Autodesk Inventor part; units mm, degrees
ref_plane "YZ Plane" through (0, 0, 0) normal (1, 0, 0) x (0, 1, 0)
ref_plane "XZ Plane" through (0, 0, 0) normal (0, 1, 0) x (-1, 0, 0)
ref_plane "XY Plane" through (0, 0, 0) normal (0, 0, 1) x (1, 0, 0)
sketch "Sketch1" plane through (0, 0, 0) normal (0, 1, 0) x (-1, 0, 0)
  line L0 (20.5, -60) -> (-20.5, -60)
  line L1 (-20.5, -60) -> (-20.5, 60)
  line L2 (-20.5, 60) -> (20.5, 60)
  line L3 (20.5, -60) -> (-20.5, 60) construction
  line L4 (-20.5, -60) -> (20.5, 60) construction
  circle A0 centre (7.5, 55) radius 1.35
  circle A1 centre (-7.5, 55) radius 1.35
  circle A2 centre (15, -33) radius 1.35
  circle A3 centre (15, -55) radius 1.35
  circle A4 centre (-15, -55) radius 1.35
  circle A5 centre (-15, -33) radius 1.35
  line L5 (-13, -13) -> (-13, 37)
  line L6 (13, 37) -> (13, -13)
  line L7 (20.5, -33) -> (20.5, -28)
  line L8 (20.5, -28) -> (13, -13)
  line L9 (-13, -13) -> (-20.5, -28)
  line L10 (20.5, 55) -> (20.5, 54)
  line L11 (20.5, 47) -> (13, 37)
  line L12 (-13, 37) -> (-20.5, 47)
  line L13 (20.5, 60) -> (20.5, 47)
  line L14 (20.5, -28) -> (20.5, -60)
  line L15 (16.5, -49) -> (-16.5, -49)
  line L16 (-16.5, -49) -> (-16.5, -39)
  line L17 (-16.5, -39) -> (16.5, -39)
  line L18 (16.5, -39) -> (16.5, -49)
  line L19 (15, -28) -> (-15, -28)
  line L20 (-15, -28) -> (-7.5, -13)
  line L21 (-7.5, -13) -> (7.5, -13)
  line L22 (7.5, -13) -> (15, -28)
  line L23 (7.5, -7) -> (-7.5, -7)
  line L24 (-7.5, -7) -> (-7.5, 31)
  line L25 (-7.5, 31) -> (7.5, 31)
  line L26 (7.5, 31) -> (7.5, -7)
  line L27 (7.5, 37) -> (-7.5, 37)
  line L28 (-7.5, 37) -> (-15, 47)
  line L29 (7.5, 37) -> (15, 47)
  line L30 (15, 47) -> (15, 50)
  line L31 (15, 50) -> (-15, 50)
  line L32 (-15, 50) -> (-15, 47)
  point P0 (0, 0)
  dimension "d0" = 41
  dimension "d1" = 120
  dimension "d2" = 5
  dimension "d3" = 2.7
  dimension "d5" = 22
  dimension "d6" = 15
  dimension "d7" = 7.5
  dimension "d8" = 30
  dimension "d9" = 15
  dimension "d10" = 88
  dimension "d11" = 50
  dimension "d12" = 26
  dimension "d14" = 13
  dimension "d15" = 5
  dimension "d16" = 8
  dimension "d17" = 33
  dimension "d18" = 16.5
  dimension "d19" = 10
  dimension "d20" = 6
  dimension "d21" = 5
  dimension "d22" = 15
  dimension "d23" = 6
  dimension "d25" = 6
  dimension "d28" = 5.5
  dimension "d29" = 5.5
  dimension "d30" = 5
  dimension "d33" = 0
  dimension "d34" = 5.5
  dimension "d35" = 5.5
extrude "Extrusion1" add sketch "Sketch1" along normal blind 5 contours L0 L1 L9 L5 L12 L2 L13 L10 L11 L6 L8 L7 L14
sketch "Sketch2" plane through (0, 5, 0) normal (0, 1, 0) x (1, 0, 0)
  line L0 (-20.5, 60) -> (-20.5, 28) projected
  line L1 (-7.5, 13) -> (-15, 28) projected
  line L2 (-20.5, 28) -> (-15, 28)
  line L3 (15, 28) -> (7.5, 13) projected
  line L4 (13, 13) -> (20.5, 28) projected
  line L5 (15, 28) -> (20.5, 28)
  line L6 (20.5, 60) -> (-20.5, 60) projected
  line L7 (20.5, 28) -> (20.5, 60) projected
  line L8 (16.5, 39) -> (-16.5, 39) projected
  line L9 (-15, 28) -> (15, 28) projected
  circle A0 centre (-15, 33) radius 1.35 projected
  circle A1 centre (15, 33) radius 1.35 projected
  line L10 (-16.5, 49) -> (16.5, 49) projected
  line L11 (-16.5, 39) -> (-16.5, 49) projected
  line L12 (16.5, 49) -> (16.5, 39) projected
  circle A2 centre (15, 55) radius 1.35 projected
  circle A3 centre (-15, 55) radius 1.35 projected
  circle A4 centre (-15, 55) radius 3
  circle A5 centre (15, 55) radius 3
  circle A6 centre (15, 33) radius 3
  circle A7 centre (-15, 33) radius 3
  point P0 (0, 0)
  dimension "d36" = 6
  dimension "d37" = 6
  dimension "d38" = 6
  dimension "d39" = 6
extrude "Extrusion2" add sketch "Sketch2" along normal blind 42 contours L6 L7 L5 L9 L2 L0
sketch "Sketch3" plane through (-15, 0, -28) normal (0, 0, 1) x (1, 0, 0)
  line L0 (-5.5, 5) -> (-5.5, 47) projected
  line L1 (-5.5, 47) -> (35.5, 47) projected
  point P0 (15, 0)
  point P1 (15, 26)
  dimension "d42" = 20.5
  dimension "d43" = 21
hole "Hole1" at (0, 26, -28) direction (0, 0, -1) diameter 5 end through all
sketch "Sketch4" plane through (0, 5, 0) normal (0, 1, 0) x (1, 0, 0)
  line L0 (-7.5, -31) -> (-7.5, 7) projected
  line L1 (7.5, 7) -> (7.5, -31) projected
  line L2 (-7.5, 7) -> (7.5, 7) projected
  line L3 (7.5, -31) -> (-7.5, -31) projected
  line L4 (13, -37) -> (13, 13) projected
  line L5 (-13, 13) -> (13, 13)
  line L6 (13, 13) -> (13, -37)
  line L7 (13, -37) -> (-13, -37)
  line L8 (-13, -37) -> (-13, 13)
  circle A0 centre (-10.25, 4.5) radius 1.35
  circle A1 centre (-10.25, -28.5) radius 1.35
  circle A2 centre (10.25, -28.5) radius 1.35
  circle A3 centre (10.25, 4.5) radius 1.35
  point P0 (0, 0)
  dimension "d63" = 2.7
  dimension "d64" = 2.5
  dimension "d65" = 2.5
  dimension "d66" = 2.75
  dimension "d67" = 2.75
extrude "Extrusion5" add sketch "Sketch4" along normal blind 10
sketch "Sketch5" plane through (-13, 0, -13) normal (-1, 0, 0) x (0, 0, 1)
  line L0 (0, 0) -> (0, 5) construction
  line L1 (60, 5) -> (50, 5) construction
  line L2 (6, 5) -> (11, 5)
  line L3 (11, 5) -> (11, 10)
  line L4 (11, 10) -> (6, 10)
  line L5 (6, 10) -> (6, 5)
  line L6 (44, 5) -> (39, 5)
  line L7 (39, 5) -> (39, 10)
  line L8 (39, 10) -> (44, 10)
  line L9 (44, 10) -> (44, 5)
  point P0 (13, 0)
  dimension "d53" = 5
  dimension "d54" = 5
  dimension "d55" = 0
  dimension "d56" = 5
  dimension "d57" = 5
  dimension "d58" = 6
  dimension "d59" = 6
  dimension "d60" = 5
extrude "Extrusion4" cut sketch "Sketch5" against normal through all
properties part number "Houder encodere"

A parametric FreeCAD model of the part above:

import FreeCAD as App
import Part
import Sketcher


def add_polygon(sketch, points):
    """Adds a closed chain of lines whose ends are joined by coincident constraints."""
    first, n = sketch.GeometryCount, len(points)
    for a, b in zip(points, points[1:] + points[:1]):
        sketch.addGeometry(Part.LineSegment(App.Vector(*a, 0), App.Vector(*b, 0)), False)
    for i in range(n):
        sketch.addConstraint(Sketcher.Constraint("Coincident", first + i, 2, first + (i + 1) % n, 1))

doc = App.newDocument("Part")
params = doc.addObject("Spreadsheet::Sheet", "Params")
for row, (alias, value) in enumerate([
    ("sketch1_diameter", "2.7 mm"),
    ("sketch1_width", "41 mm"),
    ("sketch1_width2", "33 mm"),
    ("sketch1_width3", "30 mm"),
    ("sketch1_width4", "15 mm"),
    ("pad1_length", "5 mm"),
    ("sketch2_diameter", "6 mm"),
    ("sketch2_width", "41 mm"),
    ("sketch2_width2", "33 mm"),
    ("sketch2_height", "32 mm"),
    ("sketch2_height2", "10 mm"),
    ("pad2_length", "42 mm"),
    ("sketch3_diameter", "5 mm"),
    ("hole_diameter", "5 mm"),
    ("sketch4_diameter", "2.7 mm"),
    ("sketch4_width", "26 mm"),
    ("sketch4_width2", "15 mm"),
    ("sketch4_height", "50 mm"),
    ("sketch4_height2", "38 mm"),
    ("pad3_length", "10 mm"),
    ("sketch5_width", "5 mm"),
], start=1):
    params.set(f"A{row}", alias)
    params.set(f"B{row}", "=" + value)
    params.setAlias(f"B{row}", alias)

body = doc.addObject("PartDesign::Body", "Body")

# Sketch on XZ plane
sketch1 = body.newObject("Sketcher::SketchObject", "Sketch")
sketch1.AttachmentSupport = (doc.getObject("XZ_Plane"), [""])
sketch1.MapMode = "FlatFace"
add_polygon(sketch1, [(20.5, -60), (-20.5, -60), (-20.5, -28), (-13, -13), (-13, 37), (-20.5, 47), (-20.5, 60), (20.5, 60), (20.5, 47), (13, 37), (13, -13), (20.5, -28)])  # lines 0-11
sketch1.addGeometry(Part.Circle(App.Vector(15, -55, 0), App.Vector(0, 0, 1), 1.4), False)  # 12
sketch1.addGeometry(Part.Circle(App.Vector(15, -33, 0), App.Vector(0, 0, 1), 1.4), False)  # 13
add_polygon(sketch1, [(-16.5, -39), (-16.5, -49), (16.5, -49), (16.5, -39)])  # lines 14-17
sketch1.addGeometry(Part.Circle(App.Vector(-15, -55, 0), App.Vector(0, 0, 1), 1.4), False)  # 18
sketch1.addGeometry(Part.Circle(App.Vector(-15, -33, 0), App.Vector(0, 0, 1), 1.4), False)  # 19
add_polygon(sketch1, [(-7.5, -13), (-15, -28), (15, -28), (7.5, -13)])  # lines 20-23
sketch1.addGeometry(Part.Circle(App.Vector(7.5, 55, 0), App.Vector(0, 0, 1), 1.4), False)  # 24
add_polygon(sketch1, [(-7.5, 31), (-7.5, -7), (7.5, -7), (7.5, 31)])  # lines 25-28
add_polygon(sketch1, [(-15, 47), (-7.5, 37), (7.5, 37), (15, 47), (15, 50), (-15, 50)])  # lines 29-34
sketch1.addGeometry(Part.Circle(App.Vector(-7.5, 55, 0), App.Vector(0, 0, 1), 1.4), False)  # 35
sketch1.addConstraint(Sketcher.Constraint("Horizontal", 0))
sketch1.addConstraint(Sketcher.Constraint("Vertical", 1))
sketch1.addConstraint(Sketcher.Constraint("Vertical", 3))
sketch1.addConstraint(Sketcher.Constraint("Vertical", 5))
sketch1.addConstraint(Sketcher.Constraint("Horizontal", 6))
sketch1.addConstraint(Sketcher.Constraint("Vertical", 7))
sketch1.addConstraint(Sketcher.Constraint("Vertical", 9))
sketch1.addConstraint(Sketcher.Constraint("Vertical", 11))
sketch1.addConstraint(Sketcher.Constraint("Vertical", 14))
sketch1.addConstraint(Sketcher.Constraint("Horizontal", 15))
sketch1.addConstraint(Sketcher.Constraint("Vertical", 16))
sketch1.addConstraint(Sketcher.Constraint("Horizontal", 17))
sketch1.addConstraint(Sketcher.Constraint("Horizontal", 21))
sketch1.addConstraint(Sketcher.Constraint("Horizontal", 23))
sketch1.addConstraint(Sketcher.Constraint("Vertical", 25))
sketch1.addConstraint(Sketcher.Constraint("Horizontal", 26))
sketch1.addConstraint(Sketcher.Constraint("Vertical", 27))
sketch1.addConstraint(Sketcher.Constraint("Horizontal", 28))
sketch1.addConstraint(Sketcher.Constraint("Horizontal", 30))
sketch1.addConstraint(Sketcher.Constraint("Vertical", 32))
sketch1.addConstraint(Sketcher.Constraint("Horizontal", 33))
sketch1.addConstraint(Sketcher.Constraint("Vertical", 34))
sketch1.addConstraint(Sketcher.Constraint("Equal", 12, 13))
sketch1.addConstraint(Sketcher.Constraint("Equal", 13, 18))
sketch1.addConstraint(Sketcher.Constraint("Equal", 18, 19))
sketch1.addConstraint(Sketcher.Constraint("Equal", 19, 24))
sketch1.addConstraint(Sketcher.Constraint("Equal", 24, 35))
sketch1.addConstraint(Sketcher.Constraint("Symmetric", 0, 2, 6, 2, -1, 1))
sketch1.addConstraint(Sketcher.Constraint("Symmetric", 12, 3, 18, 3, -2))
sketch1.addConstraint(Sketcher.Constraint("Symmetric", 13, 3, 19, 3, -2))
sketch1.addConstraint(Sketcher.Constraint("Symmetric", 24, 3, 35, 3, -2))
sketch1.addConstraint(Sketcher.Constraint("Symmetric", 4, 2, 7, 2, -2))
sketch1.addConstraint(Sketcher.Constraint("Symmetric", 3, 2, 8, 2, -2))
sketch1.addConstraint(Sketcher.Constraint("Symmetric", 1, 2, 10, 2, -2))
sketch1.addConstraint(Sketcher.Constraint("Symmetric", 31, 2, 34, 2, -2))
sketch1.addConstraint(Sketcher.Constraint("Parallel", 2, 20))
sketch1.addConstraint(Sketcher.Constraint("Parallel", 10, 22))
sketch1.addConstraint(Sketcher.Constraint("Parallel", 4, 29))
sketch1.addConstraint(Sketcher.Constraint("Parallel", 8, 31))
sketch1.addConstraint(Sketcher.Constraint("Horizontal", 2, 2, 9, 2))
sketch1.addConstraint(Sketcher.Constraint("Horizontal", 10, 2, 20, 2))
sketch1.addConstraint(Sketcher.Constraint("Horizontal", 9, 2, 22, 2))
sketch1.addConstraint(Sketcher.Constraint("Horizontal", 8, 2, 29, 2))
sketch1.addConstraint(Sketcher.Constraint("Horizontal", 7, 2, 31, 2))
sketch1.addConstraint(Sketcher.Constraint("Vertical", 12, 3, 13, 3))
sketch1.addConstraint(Sketcher.Constraint("Vertical", 19, 3, 20, 2))
sketch1.addConstraint(Sketcher.Constraint("Vertical", 13, 3, 21, 2))
sketch1.addConstraint(Sketcher.Constraint("Vertical", 24, 3, 22, 2))
sketch1.addConstraint(Sketcher.Constraint("Vertical", 23, 2, 25, 2))
sketch1.addConstraint(Sketcher.Constraint("Vertical", 22, 2, 26, 2))
sketch1.addConstraint(Sketcher.Constraint("Vertical", 28, 2, 29, 2))
sketch1.addConstraint(Sketcher.Constraint("Diameter", 12, 2.7))
sketch1.addConstraint(Sketcher.Constraint("DistanceX", 0, 2, 0, 1, 41.0))
sketch1.addConstraint(Sketcher.Constraint("DistanceX", 15, 1, 15, 2, 33.0))
sketch1.addConstraint(Sketcher.Constraint("DistanceX", 21, 1, 21, 2, 30.0))
sketch1.addConstraint(Sketcher.Constraint("DistanceX", 23, 2, 23, 1, 15.0))
sketch1.addConstraint(Sketcher.Constraint("DistanceY", 3, 1, 3, 2, 50.0))
sketch1.addConstraint(Sketcher.Constraint("DistanceY", 5, 1, 5, 2, 13.0))
sketch1.addConstraint(Sketcher.Constraint("DistanceY", 14, 2, 14, 1, 10.0))
sketch1.addConstraint(Sketcher.Constraint("DistanceY", 13, 3, -1, 1, 33.0))
sketch1.addConstraint(Sketcher.Constraint("DistanceY", 2, 2, -1, 1, 13.0))
sketch1.addConstraint(Sketcher.Constraint("DistanceY", -1, 1, 32, 2, 50.0))
sketch1.addConstraint(Sketcher.Constraint("DistanceY", 12, 3, 13, 3, 22.0))
sketch1.addConstraint(Sketcher.Constraint("DistanceY", 13, 3, 24, 3, 88.0))
sketch1.addConstraint(Sketcher.Constraint("DistanceY", 0, 2, 18, 3, 5.0))
sketch1.addConstraint(Sketcher.Constraint("DistanceY", 19, 3, 1, 2, 5.0))
sketch1.addConstraint(Sketcher.Constraint("DistanceY", 18, 3, 14, 2, 6.0))
sketch1.addConstraint(Sketcher.Constraint("DistanceY", 23, 2, 25, 2, 6.0))
sketch1.addConstraint(Sketcher.Constraint("DistanceY", 27, 2, 8, 2, 6.0))
sketch1.addConstraint(Sketcher.Constraint("DistanceX", 14, 2, -1, 1, 16.5))
sketch1.setExpression("Constraints[81]", "Params.sketch1_diameter")
sketch1.setExpression("Constraints[82]", "Params.sketch1_width")
sketch1.setExpression("Constraints[83]", "Params.sketch1_width2")
sketch1.setExpression("Constraints[84]", "Params.sketch1_width3")
sketch1.setExpression("Constraints[85]", "Params.sketch1_width4")
pad1 = body.newObject("PartDesign::Pad", "Pad")
pad1.Profile = sketch1
pad1.setExpression("Length", "Params.pad1_length")
pad1.Reversed = True

# Sketch on XZ plane
sketch2 = body.newObject("Sketcher::SketchObject", "Sketch001")
sketch2.AttachmentSupport = (doc.getObject("XZ_Plane"), [""])
sketch2.MapMode = "FlatFace"
sketch2.AttachmentOffset = App.Placement(App.Vector(0, 0, -5), App.Rotation())
add_polygon(sketch2, [(20.5, -60), (-20.5, -60), (-20.5, -28), (20.5, -28)])  # lines 0-3
sketch2.addGeometry(Part.Circle(App.Vector(-15, -33, 0), App.Vector(0, 0, 1), 3), False)  # 4
sketch2.addGeometry(Part.Circle(App.Vector(15, -33, 0), App.Vector(0, 0, 1), 3), False)  # 5
sketch2.addGeometry(Part.Circle(App.Vector(-15, -55, 0), App.Vector(0, 0, 1), 3), False)  # 6
add_polygon(sketch2, [(16.5, -49), (16.5, -39), (-16.5, -39), (-16.5, -49)])  # lines 7-10
sketch2.addGeometry(Part.Circle(App.Vector(15, -55, 0), App.Vector(0, 0, 1), 3), False)  # 11
sketch2.addConstraint(Sketcher.Constraint("Horizontal", 0))
sketch2.addConstraint(Sketcher.Constraint("Vertical", 1))
sketch2.addConstraint(Sketcher.Constraint("Horizontal", 2))
sketch2.addConstraint(Sketcher.Constraint("Vertical", 3))
sketch2.addConstraint(Sketcher.Constraint("Vertical", 7))
sketch2.addConstraint(Sketcher.Constraint("Horizontal", 8))
sketch2.addConstraint(Sketcher.Constraint("Vertical", 9))
sketch2.addConstraint(Sketcher.Constraint("Horizontal", 10))
sketch2.addConstraint(Sketcher.Constraint("Equal", 4, 5))
sketch2.addConstraint(Sketcher.Constraint("Equal", 5, 6))
sketch2.addConstraint(Sketcher.Constraint("Equal", 6, 11))
sketch2.addConstraint(Sketcher.Constraint("Symmetric", 4, 3, 5, 3, -2))
sketch2.addConstraint(Sketcher.Constraint("Symmetric", 6, 3, 11, 3, -2))
sketch2.addConstraint(Sketcher.Constraint("Vertical", 4, 3, 6, 3))
sketch2.addConstraint(Sketcher.Constraint("Diameter", 4, 6.0))
sketch2.addConstraint(Sketcher.Constraint("DistanceY", 7, 2, 5, 3, 6.0))
sketch2.addConstraint(Sketcher.Constraint("DistanceY", 6, 3, 9, 2, 6.0))
sketch2.addConstraint(Sketcher.Constraint("DistanceX", 0, 2, 0, 1, 41.0))
sketch2.addConstraint(Sketcher.Constraint("DistanceX", 8, 2, 8, 1, 33.0))
sketch2.addConstraint(Sketcher.Constraint("DistanceY", 1, 1, 1, 2, 32.0))
sketch2.addConstraint(Sketcher.Constraint("DistanceY", 7, 1, 7, 2, 10.0))
sketch2.addConstraint(Sketcher.Constraint("DistanceX", 4, 3, -1, 1, 15.0))
sketch2.addConstraint(Sketcher.Constraint("DistanceY", 4, 3, -1, 1, 33.0))
sketch2.addConstraint(Sketcher.Constraint("DistanceY", 0, 2, -1, 1, 60.0))
sketch2.addConstraint(Sketcher.Constraint("DistanceX", 7, 2, 2, 2, 4.0))
sketch2.addConstraint(Sketcher.Constraint("DistanceX", 0, 2, -1, 1, 20.5))
sketch2.setExpression("Constraints[22]", "Params.sketch2_diameter")
sketch2.setExpression("Constraints[25]", "Params.sketch2_width")
sketch2.setExpression("Constraints[26]", "Params.sketch2_width2")
sketch2.setExpression("Constraints[27]", "Params.sketch2_height")
sketch2.setExpression("Constraints[28]", "Params.sketch2_height2")
pad2 = body.newObject("PartDesign::Pad", "Pad001")
pad2.Profile = sketch2
pad2.setExpression("Length", "Params.pad2_length")
pad2.Reversed = True

# Sketch on XY plane
sketch3 = body.newObject("Sketcher::SketchObject", "Sketch002")
sketch3.AttachmentSupport = (doc.getObject("XY_Plane"), [""])
sketch3.MapMode = "FlatFace"
sketch3.AttachmentOffset = App.Placement(App.Vector(0, 0, -28), App.Rotation())
sketch3.addGeometry(Part.Circle(App.Vector(0, 26, 0), App.Vector(0, 0, 1), 2.5), False)
sketch3.addConstraint(Sketcher.Constraint("PointOnObject", 0, 3, -2))
sketch3.addConstraint(Sketcher.Constraint("Diameter", 0, 5.0))
sketch3.addConstraint(Sketcher.Constraint("DistanceY", -1, 1, 0, 3, 26.0))
sketch3.setExpression("Constraints[1]", "Params.sketch3_diameter")
doc.recompute()
hole = body.newObject("PartDesign::Hole", "Hole")
hole.Profile = sketch3
hole.ThreadType = "None"
hole.setExpression("Diameter", "Params.hole_diameter")
hole.DepthType = "ThroughAll"

# Sketch on XZ plane
sketch4 = body.newObject("Sketcher::SketchObject", "Sketch003")
sketch4.AttachmentSupport = (doc.getObject("XZ_Plane"), [""])
sketch4.MapMode = "FlatFace"
sketch4.AttachmentOffset = App.Placement(App.Vector(0, 0, -5), App.Rotation())
add_polygon(sketch4, [(-13, 37), (13, 37), (13, -13), (-13, -13)])  # lines 0-3
sketch4.addGeometry(Part.Circle(App.Vector(-10.2, 28.5, 0), App.Vector(0, 0, 1), 1.4), False)  # 4
sketch4.addGeometry(Part.Circle(App.Vector(10.2, 28.5, 0), App.Vector(0, 0, 1), 1.4), False)  # 5
sketch4.addGeometry(Part.Circle(App.Vector(-10.2, -4.5, 0), App.Vector(0, 0, 1), 1.4), False)  # 6
add_polygon(sketch4, [(7.5, 31), (-7.5, 31), (-7.5, -7), (7.5, -7)])  # lines 7-10
sketch4.addGeometry(Part.Circle(App.Vector(10.2, -4.5, 0), App.Vector(0, 0, 1), 1.4), False)  # 11
sketch4.addConstraint(Sketcher.Constraint("Horizontal", 0))
sketch4.addConstraint(Sketcher.Constraint("Vertical", 1))
sketch4.addConstraint(Sketcher.Constraint("Horizontal", 2))
sketch4.addConstraint(Sketcher.Constraint("Vertical", 3))
sketch4.addConstraint(Sketcher.Constraint("Horizontal", 7))
sketch4.addConstraint(Sketcher.Constraint("Vertical", 8))
sketch4.addConstraint(Sketcher.Constraint("Horizontal", 9))
sketch4.addConstraint(Sketcher.Constraint("Vertical", 10))
sketch4.addConstraint(Sketcher.Constraint("Equal", 4, 5))
sketch4.addConstraint(Sketcher.Constraint("Equal", 5, 6))
sketch4.addConstraint(Sketcher.Constraint("Equal", 6, 11))
sketch4.addConstraint(Sketcher.Constraint("Symmetric", 4, 3, 5, 3, -2))
sketch4.addConstraint(Sketcher.Constraint("Symmetric", 6, 3, 11, 3, -2))
sketch4.addConstraint(Sketcher.Constraint("Vertical", 4, 3, 6, 3))
sketch4.addConstraint(Sketcher.Constraint("Diameter", 4, 2.7))
sketch4.addConstraint(Sketcher.Constraint("DistanceY", 4, 3, 7, 2, 2.5))
sketch4.addConstraint(Sketcher.Constraint("DistanceY", 8, 2, 6, 3, 2.5))
sketch4.addConstraint(Sketcher.Constraint("DistanceX", 0, 1, 0, 2, 26.0))
sketch4.addConstraint(Sketcher.Constraint("DistanceX", 7, 2, 7, 1, 15.0))
sketch4.addConstraint(Sketcher.Constraint("DistanceY", 1, 2, 1, 1, 50.0))
sketch4.addConstraint(Sketcher.Constraint("DistanceY", 8, 2, 8, 1, 38.0))
sketch4.addConstraint(Sketcher.Constraint("DistanceX", 5, 3, 0, 2, 2.75))
sketch4.addConstraint(Sketcher.Constraint("DistanceX", 2, 2, 6, 3, 2.75))
sketch4.addConstraint(Sketcher.Constraint("DistanceX", 4, 3, 7, 2, 2.75))
sketch4.addConstraint(Sketcher.Constraint("DistanceY", -1, 1, 0, 2, 37.0))
sketch4.addConstraint(Sketcher.Constraint("DistanceY", -1, 1, 7, 2, 31.0))
sketch4.setExpression("Constraints[22]", "Params.sketch4_diameter")
sketch4.setExpression("Constraints[25]", "Params.sketch4_width")
sketch4.setExpression("Constraints[26]", "Params.sketch4_width2")
sketch4.setExpression("Constraints[27]", "Params.sketch4_height")
sketch4.setExpression("Constraints[28]", "Params.sketch4_height2")
pad3 = body.newObject("PartDesign::Pad", "Pad002")
pad3.Profile = sketch4
pad3.setExpression("Length", "Params.pad3_length")
pad3.Reversed = True

# Sketch on YZ plane
sketch5 = body.newObject("Sketcher::SketchObject", "Sketch004")
sketch5.AttachmentSupport = (doc.getObject("YZ_Plane"), [""])
sketch5.MapMode = "FlatFace"
sketch5.AttachmentOffset = App.Placement(App.Vector(0, 0, -13), App.Rotation())
add_polygon(sketch5, [(10, -7), (5, -7), (5, -2), (10, -2)])  # lines 0-3
add_polygon(sketch5, [(5, 26), (5, 31), (10, 31), (10, 26)])  # lines 4-7
sketch5.addConstraint(Sketcher.Constraint("Horizontal", 0))
sketch5.addConstraint(Sketcher.Constraint("Vertical", 1))
sketch5.addConstraint(Sketcher.Constraint("Horizontal", 2))
sketch5.addConstraint(Sketcher.Constraint("Vertical", 3))
sketch5.addConstraint(Sketcher.Constraint("Vertical", 4))
sketch5.addConstraint(Sketcher.Constraint("Horizontal", 5))
sketch5.addConstraint(Sketcher.Constraint("Vertical", 6))
sketch5.addConstraint(Sketcher.Constraint("Horizontal", 7))
sketch5.addConstraint(Sketcher.Constraint("Vertical", 1, 2, 4, 2))
sketch5.addConstraint(Sketcher.Constraint("Vertical", 3, 2, 5, 2))
sketch5.addConstraint(Sketcher.Constraint("Equal", 7, 1))
sketch5.addConstraint(Sketcher.Constraint("Equal", 3, 4))
sketch5.addConstraint(Sketcher.Constraint("DistanceX", 0, 2, 0, 1, 5.0))
sketch5.addConstraint(Sketcher.Constraint("DistanceX", -1, 1, 0, 2, 5.0))
sketch5.addConstraint(Sketcher.Constraint("DistanceY", 0, 2, -1, 1, 7.0))
sketch5.addConstraint(Sketcher.Constraint("DistanceY", -1, 1, 4, 2, 31.0))
sketch5.setExpression("Constraints[20]", "Params.sketch5_width")
pocket1 = body.newObject("PartDesign::Pocket", "Pocket")
pocket1.Profile = sketch5
pocket1.Type = "ThroughAll"
pocket1.Reversed = True

doc.recompute()
